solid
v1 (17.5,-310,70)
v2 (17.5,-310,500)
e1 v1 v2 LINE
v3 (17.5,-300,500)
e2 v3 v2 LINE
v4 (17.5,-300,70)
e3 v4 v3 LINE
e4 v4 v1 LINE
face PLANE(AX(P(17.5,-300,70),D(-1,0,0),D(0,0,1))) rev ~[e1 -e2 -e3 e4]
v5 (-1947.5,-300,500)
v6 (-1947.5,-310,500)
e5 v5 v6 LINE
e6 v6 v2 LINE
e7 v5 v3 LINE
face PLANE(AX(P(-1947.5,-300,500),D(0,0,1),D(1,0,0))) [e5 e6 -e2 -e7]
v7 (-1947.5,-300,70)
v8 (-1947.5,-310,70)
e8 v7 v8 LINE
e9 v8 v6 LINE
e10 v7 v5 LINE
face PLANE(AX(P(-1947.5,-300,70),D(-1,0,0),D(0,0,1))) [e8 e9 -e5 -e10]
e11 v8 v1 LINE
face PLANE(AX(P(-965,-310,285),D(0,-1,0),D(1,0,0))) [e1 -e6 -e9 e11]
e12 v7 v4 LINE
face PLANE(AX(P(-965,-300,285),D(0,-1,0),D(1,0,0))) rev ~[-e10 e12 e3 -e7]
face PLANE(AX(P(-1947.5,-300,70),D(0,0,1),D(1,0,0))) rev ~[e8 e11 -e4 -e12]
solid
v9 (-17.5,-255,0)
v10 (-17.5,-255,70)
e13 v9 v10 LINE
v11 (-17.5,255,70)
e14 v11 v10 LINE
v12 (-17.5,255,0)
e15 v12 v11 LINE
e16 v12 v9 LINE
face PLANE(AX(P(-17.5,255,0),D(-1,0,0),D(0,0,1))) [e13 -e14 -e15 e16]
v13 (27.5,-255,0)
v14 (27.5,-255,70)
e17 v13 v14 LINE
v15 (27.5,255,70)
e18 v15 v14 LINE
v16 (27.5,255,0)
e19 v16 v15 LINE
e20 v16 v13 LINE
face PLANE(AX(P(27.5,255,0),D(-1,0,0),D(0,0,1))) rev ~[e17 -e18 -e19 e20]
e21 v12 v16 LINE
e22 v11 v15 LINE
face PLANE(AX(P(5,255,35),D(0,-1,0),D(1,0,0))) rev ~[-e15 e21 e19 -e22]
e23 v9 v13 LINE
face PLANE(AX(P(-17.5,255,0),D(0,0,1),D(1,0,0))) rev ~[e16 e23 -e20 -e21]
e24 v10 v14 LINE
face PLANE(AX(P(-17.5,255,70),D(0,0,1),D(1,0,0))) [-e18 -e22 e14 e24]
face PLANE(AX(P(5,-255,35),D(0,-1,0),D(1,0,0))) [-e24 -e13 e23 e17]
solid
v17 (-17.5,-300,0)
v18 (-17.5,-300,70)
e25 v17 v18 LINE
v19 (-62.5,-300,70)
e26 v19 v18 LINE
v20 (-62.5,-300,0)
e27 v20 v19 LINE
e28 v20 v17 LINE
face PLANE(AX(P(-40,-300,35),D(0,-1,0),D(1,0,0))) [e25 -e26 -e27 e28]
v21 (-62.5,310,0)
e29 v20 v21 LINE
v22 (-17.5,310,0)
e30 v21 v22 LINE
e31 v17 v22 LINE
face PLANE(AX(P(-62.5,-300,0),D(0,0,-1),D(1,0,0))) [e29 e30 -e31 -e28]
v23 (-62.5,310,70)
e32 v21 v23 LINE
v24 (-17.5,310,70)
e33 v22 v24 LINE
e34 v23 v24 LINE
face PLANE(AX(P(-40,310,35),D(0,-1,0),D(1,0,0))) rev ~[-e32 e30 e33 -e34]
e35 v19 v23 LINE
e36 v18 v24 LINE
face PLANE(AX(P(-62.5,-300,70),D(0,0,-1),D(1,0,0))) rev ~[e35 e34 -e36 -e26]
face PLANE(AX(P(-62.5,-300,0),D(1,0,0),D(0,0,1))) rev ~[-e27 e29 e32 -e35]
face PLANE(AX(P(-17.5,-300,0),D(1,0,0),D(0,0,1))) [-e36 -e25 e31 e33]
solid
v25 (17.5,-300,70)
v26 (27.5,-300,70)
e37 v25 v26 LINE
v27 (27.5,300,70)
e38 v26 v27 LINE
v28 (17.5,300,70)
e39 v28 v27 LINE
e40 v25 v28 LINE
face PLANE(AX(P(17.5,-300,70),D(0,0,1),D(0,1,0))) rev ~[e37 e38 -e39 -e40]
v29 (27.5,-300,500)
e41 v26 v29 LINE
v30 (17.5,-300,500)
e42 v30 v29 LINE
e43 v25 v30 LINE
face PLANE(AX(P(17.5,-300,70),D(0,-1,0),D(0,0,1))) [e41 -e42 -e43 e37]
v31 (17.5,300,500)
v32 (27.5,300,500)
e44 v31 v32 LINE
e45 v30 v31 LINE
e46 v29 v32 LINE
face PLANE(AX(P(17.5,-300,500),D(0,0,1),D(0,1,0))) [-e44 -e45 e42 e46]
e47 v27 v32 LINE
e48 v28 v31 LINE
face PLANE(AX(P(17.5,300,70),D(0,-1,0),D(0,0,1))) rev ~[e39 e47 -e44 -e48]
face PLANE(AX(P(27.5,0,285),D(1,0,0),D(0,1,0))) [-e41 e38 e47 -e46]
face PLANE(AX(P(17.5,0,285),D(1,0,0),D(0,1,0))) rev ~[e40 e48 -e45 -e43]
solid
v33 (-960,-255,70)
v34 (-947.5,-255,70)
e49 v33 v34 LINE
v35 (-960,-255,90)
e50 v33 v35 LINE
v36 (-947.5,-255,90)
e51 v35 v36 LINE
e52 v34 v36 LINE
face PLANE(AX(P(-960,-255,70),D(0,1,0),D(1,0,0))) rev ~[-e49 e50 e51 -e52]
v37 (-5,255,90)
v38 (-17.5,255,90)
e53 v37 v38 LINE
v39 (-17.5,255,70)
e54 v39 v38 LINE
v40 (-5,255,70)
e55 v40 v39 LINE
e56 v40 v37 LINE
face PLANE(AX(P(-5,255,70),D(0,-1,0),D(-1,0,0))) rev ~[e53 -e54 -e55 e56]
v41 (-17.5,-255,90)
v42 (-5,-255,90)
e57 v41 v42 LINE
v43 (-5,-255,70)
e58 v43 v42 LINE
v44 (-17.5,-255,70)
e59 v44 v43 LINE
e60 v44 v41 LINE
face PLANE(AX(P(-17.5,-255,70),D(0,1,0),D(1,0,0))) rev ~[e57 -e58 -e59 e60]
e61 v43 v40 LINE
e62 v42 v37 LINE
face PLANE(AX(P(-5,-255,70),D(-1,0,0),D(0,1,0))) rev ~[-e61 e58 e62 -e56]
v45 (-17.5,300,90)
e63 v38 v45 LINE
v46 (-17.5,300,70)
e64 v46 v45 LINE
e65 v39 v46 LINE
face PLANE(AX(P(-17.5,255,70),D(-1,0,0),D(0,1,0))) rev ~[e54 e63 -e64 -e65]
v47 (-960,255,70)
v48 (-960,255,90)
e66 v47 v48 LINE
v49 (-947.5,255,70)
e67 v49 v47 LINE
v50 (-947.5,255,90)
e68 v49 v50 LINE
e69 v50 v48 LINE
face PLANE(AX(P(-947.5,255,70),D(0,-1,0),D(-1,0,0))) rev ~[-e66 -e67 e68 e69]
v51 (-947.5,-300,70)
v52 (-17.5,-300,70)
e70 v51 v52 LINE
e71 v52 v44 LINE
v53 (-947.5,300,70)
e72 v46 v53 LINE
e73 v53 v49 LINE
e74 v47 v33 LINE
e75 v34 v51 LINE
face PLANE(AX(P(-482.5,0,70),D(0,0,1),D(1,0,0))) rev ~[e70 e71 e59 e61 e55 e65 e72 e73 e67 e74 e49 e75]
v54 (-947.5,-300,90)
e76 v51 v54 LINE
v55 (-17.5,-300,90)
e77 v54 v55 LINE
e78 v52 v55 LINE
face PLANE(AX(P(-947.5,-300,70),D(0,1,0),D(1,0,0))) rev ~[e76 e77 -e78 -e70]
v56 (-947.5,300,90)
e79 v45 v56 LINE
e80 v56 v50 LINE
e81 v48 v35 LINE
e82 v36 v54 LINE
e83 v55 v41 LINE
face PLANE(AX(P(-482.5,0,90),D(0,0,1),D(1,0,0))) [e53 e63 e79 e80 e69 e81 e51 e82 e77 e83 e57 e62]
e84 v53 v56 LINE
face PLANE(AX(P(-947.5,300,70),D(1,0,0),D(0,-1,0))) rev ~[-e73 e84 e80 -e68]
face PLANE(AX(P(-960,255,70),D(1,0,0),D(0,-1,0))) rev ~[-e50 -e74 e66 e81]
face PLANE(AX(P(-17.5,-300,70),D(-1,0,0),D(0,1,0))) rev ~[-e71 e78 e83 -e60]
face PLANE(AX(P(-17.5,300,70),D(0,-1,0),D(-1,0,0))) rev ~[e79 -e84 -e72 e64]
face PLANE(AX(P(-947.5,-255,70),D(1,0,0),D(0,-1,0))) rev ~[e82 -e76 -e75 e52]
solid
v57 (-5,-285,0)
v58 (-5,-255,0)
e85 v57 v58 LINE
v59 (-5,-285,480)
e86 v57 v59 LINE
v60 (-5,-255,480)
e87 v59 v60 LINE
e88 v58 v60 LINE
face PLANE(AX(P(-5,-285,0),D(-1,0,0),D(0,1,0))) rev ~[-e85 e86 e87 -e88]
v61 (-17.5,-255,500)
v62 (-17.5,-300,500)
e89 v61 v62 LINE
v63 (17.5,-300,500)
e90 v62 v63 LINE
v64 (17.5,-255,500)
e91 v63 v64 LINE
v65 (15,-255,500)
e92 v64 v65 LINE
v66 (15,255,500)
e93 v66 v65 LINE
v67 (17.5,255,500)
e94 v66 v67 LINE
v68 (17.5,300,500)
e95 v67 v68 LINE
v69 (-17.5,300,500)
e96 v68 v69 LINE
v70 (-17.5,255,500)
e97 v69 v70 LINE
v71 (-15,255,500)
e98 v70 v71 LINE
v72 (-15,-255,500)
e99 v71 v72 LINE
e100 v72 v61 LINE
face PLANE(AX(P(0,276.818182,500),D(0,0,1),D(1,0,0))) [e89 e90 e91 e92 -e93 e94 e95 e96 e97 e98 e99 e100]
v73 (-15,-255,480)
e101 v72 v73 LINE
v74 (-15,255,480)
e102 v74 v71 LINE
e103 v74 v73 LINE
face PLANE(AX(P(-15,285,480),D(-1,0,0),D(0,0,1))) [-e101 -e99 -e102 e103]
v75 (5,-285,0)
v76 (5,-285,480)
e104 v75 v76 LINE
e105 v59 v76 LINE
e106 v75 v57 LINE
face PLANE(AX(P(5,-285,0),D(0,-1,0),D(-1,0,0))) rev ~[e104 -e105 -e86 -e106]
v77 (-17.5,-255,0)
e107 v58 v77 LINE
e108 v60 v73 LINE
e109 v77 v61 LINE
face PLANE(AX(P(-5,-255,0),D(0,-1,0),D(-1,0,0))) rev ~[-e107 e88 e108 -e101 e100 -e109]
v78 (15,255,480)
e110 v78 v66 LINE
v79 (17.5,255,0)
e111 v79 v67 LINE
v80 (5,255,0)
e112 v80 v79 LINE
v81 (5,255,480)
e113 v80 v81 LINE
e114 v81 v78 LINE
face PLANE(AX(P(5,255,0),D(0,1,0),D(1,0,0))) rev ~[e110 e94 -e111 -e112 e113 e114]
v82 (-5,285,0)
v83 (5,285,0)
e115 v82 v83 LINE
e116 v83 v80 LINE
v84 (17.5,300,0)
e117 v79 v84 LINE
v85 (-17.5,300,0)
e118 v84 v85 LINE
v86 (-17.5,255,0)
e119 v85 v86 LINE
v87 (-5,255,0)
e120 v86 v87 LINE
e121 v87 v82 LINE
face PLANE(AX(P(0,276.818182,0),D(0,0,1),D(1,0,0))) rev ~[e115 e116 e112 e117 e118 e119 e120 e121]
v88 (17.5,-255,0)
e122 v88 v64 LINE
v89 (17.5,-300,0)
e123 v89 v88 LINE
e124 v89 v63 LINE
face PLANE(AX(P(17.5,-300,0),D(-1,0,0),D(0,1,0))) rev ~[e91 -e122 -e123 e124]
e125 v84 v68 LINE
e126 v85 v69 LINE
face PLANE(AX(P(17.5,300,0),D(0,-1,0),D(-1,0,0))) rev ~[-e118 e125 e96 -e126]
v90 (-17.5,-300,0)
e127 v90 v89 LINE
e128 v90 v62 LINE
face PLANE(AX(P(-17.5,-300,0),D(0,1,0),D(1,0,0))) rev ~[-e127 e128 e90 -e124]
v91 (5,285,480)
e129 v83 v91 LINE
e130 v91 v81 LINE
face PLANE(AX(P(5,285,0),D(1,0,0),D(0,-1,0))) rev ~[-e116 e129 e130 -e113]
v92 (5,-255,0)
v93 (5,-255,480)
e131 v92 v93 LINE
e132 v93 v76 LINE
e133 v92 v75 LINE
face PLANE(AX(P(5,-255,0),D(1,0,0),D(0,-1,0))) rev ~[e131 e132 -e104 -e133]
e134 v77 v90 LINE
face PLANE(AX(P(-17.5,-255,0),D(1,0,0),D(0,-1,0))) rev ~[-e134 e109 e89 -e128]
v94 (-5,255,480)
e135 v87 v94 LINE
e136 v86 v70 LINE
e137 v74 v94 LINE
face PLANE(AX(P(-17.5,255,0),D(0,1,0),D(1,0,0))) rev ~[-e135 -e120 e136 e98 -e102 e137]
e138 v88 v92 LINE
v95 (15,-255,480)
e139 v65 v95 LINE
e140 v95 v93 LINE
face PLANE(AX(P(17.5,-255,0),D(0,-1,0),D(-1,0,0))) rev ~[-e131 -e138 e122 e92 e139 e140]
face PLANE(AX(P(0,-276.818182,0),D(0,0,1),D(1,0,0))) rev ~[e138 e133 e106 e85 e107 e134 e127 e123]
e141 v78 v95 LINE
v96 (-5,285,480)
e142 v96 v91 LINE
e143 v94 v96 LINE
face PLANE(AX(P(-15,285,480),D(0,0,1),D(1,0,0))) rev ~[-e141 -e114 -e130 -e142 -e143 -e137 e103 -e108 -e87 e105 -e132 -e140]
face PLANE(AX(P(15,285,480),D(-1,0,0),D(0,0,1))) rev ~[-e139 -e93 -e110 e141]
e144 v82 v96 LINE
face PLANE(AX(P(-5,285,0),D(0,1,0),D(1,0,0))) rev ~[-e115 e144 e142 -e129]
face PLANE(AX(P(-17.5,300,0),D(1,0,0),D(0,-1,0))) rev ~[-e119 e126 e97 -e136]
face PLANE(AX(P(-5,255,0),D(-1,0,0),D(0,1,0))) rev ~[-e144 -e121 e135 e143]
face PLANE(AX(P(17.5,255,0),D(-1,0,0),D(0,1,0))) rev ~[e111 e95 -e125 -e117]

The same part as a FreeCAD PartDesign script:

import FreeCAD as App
import Part
import Sketcher

V = App.Vector

doc = App.newDocument("Part")
params = doc.addObject("Spreadsheet::Sheet", "Params")
for row, (alias, value) in enumerate([
    ("sketch1_width", "35 mm"),
    ("sketch1_width2", "10 mm"),
    ("sketch1_height", "45 mm"),
    ("sketch1_height2", "30 mm"),
    ("pad1_length", "500 mm"),
    ("sketch2_width", "30 mm"),
    ("sketch2_height", "20 mm"),
    ("sketch3_width", "45 mm"),
    ("sketch3_height", "70 mm"),
    ("pad3_length", "610 mm"),
    ("sketch4_width", "1965 mm"),
    ("sketch4_height", "430 mm"),
    ("pad4_length", "10 mm"),
    ("sketch5_width", "600 mm"),
    ("sketch5_height", "430 mm"),
    ("pad5_length", "10 mm"),
    ("sketch6_width", "930 mm"),
    ("sketch6_height", "510 mm"),
    ("sketch6_height2", "45 mm"),
    ("sketch6_width2", "12.5 mm"),
    ("pad6_length", "20 mm"),
    ("sketch7_width", "45 mm"),
    ("sketch7_height", "70 mm"),
    ("pad7_length", "510 mm"),
], start=1):
    params.set(f"A{row}", alias)
    params.set(f"B{row}", "=" + value)
    params.setAlias(f"B{row}", alias)

body = doc.addObject("PartDesign::Body", "Body")
body.AllowCompound = True

sketch1 = body.newObject("Sketcher::SketchObject", "Sketch")
sketch1.AttachmentSupport = (doc.getObject("XY_Plane"), [""])
sketch1.MapMode = "FlatFace"
sketch1.addGeometry([
    Part.LineSegment(V(17.5, 300, 0), V(-17.5, 300, 0)),
    Part.LineSegment(V(-17.5, 300, 0), V(-17.5, 255, 0)),
    Part.LineSegment(V(-17.5, 255, 0), V(-5, 255, 0)),
    Part.LineSegment(V(-5, 255, 0), V(-5, 285, 0)),
    Part.LineSegment(V(-5, 285, 0), V(5, 285, 0)),
    Part.LineSegment(V(5, 285, 0), V(5, 255, 0)),
    Part.LineSegment(V(5, 255, 0), V(17.5, 255, 0)),
    Part.LineSegment(V(17.5, 255, 0), V(17.5, 300, 0)),
    Part.LineSegment(V(-5, -255, 0), V(-17.5, -255, 0)),
    Part.LineSegment(V(-17.5, -255, 0), V(-17.5, -300, 0)),
    Part.LineSegment(V(-17.5, -300, 0), V(17.5, -300, 0)),
    Part.LineSegment(V(17.5, -300, 0), V(17.5, -255, 0)),
    Part.LineSegment(V(17.5, -255, 0), V(5, -255, 0)),
    Part.LineSegment(V(5, -255, 0), V(5, -285, 0)),
    Part.LineSegment(V(5, -285, 0), V(-5, -285, 0)),
    Part.LineSegment(V(-5, -285, 0), V(-5, -255, 0)),
], False)
sketch1.addConstraint([
    Sketcher.Constraint("Coincident", 0, 2, 1, 1),
    Sketcher.Constraint("Coincident", 1, 2, 2, 1),
    Sketcher.Constraint("Coincident", 2, 2, 3, 1),
    Sketcher.Constraint("Coincident", 3, 2, 4, 1),
    Sketcher.Constraint("Coincident", 4, 2, 5, 1),
    Sketcher.Constraint("Coincident", 5, 2, 6, 1),
    Sketcher.Constraint("Coincident", 6, 2, 7, 1),
    Sketcher.Constraint("Coincident", 7, 2, 0, 1),
    Sketcher.Constraint("Coincident", 8, 2, 9, 1),
    Sketcher.Constraint("Coincident", 9, 2, 10, 1),
    Sketcher.Constraint("Coincident", 10, 2, 11, 1),
    Sketcher.Constraint("Coincident", 11, 2, 12, 1),
    Sketcher.Constraint("Coincident", 12, 2, 13, 1),
    Sketcher.Constraint("Coincident", 13, 2, 14, 1),
    Sketcher.Constraint("Coincident", 14, 2, 15, 1),
    Sketcher.Constraint("Coincident", 15, 2, 8, 1),
    Sketcher.Constraint("Horizontal", 0),
    Sketcher.Constraint("Vertical", 1),
    Sketcher.Constraint("Horizontal", 2),
    Sketcher.Constraint("Vertical", 3),
    Sketcher.Constraint("Horizontal", 4),
    Sketcher.Constraint("Vertical", 5),
    Sketcher.Constraint("Horizontal", 6),
    Sketcher.Constraint("Vertical", 7),
    Sketcher.Constraint("Horizontal", 8),
    Sketcher.Constraint("Vertical", 9),
    Sketcher.Constraint("Horizontal", 10),
    Sketcher.Constraint("Vertical", 11),
    Sketcher.Constraint("Horizontal", 12),
    Sketcher.Constraint("Vertical", 13),
    Sketcher.Constraint("Horizontal", 14),
    Sketcher.Constraint("Vertical", 15),
    Sketcher.Constraint("Symmetric", 6, 2, 8, 2, -1, 1),
    Sketcher.Constraint("Symmetric", 0, 2, 10, 2, -1, 1),
    Sketcher.Constraint("Symmetric", 2, 2, 12, 2, -1, 1),
    Sketcher.Constraint("Symmetric", 4, 2, 14, 2, -1, 1),
    Sketcher.Constraint("Symmetric", 2, 2, 5, 2, -2),
    Sketcher.Constraint("Vertical", 1, 2, 8, 2),
    Sketcher.Constraint("DistanceX", 0, 2, 0, 1, 35.0),
    Sketcher.Constraint("DistanceX", 4, 1, 4, 2, 10.0),
    Sketcher.Constraint("DistanceY", 1, 2, 1, 1, 45.0),
    Sketcher.Constraint("DistanceY", 3, 1, 3, 2, 30.0),
    Sketcher.Constraint("DistanceY", -1, 1, 0, 2, 300.0),
])
sketch1.setExpression("Constraints[38]", "Params.sketch1_width")
sketch1.setExpression("Constraints[39]", "Params.sketch1_width2")
sketch1.setExpression("Constraints[40]", "Params.sketch1_height")
sketch1.setExpression("Constraints[41]", "Params.sketch1_height2")
pad1 = body.newObject("PartDesign::Pad", "Pad")
pad1.Profile = sketch1
pad1.setExpression("Length", "Params.pad1_length")

sketch2 = body.newObject("Sketcher::SketchObject", "Sketch001")
sketch2.AttachmentSupport = (doc.getObject("XZ_Plane"), [""])
sketch2.MapMode = "FlatFace"
sketch2.AttachmentOffset = App.Placement(V(0, 0, -285), App.Rotation())
sketch2.addGeometry([
    Part.LineSegment(V(-15, 500, 0), V(-15, 480, 0)),
    Part.LineSegment(V(-15, 480, 0), V(15, 480, 0)),
    Part.LineSegment(V(15, 480, 0), V(15, 500, 0)),
    Part.LineSegment(V(15, 500, 0), V(-15, 500, 0)),
], False)
sketch2.addConstraint([
    Sketcher.Constraint("Coincident", 0, 2, 1, 1),
    Sketcher.Constraint("Coincident", 1, 2, 2, 1),
    Sketcher.Constraint("Coincident", 2, 2, 3, 1),
    Sketcher.Constraint("Coincident", 3, 2, 0, 1),
    Sketcher.Constraint("Vertical", 0),
    Sketcher.Constraint("Horizontal", 1),
    Sketcher.Constraint("Vertical", 2),
    Sketcher.Constraint("Horizontal", 3),
    Sketcher.Constraint("DistanceX", 1, 1, 1, 2, 30.0),
    Sketcher.Constraint("DistanceY", 0, 2, 0, 1, 20.0),
    Sketcher.Constraint("DistanceX", 0, 2, -1, 1, 15.0),
    Sketcher.Constraint("DistanceY", -1, 1, 0, 2, 480.0),
])
sketch2.setExpression("Constraints[8]", "Params.sketch2_width")
sketch2.setExpression("Constraints[9]", "Params.sketch2_height")
pad2 = body.newObject("PartDesign::Pad", "Pad001")
pad2.Profile = sketch2
pad2.Type = "UpToLast"
body2 = doc.addObject("PartDesign::Body", "Body001")

sketch3 = body2.newObject("Sketcher::SketchObject", "Sketch002")
sketch3.AttachmentSupport = (doc.getObject("XZ_Plane001"), [""])
sketch3.MapMode = "FlatFace"
sketch3.AttachmentOffset = App.Placement(V(0, 0, 300), App.Rotation())
sketch3.addGeometry([
    Part.LineSegment(V(-62.5, 70, 0), V(-62.5, 0, 0)),
    Part.LineSegment(V(-62.5, 0, 0), V(-17.5, 0, 0)),
    Part.LineSegment(V(-17.5, 0, 0), V(-17.5, 70, 0)),
    Part.LineSegment(V(-17.5, 70, 0), V(-62.5, 70, 0)),
], False)
sketch3.addConstraint([
    Sketcher.Constraint("Coincident", 0, 2, 1, 1),
    Sketcher.Constraint("Coincident", 1, 2, 2, 1),
    Sketcher.Constraint("Coincident", 2, 2, 3, 1),
    Sketcher.Constraint("Coincident", 3, 2, 0, 1),
    Sketcher.Constraint("Vertical", 0),
    Sketcher.Constraint("Horizontal", 1),
    Sketcher.Constraint("Vertical", 2),
    Sketcher.Constraint("Horizontal", 3),
    Sketcher.Constraint("PointOnObject", 0, 2, -1),
    Sketcher.Constraint("DistanceX", 1, 1, 1, 2, 45.0),
    Sketcher.Constraint("DistanceY", 0, 2, 0, 1, 70.0),
    Sketcher.Constraint("DistanceX", 0, 2, -1, 1, 62.5),
])
sketch3.setExpression("Constraints[9]", "Params.sketch3_width")
sketch3.setExpression("Constraints[10]", "Params.sketch3_height")
pad3 = body2.newObject("PartDesign::Pad", "Pad002")
pad3.Profile = sketch3
pad3.setExpression("Length", "Params.pad3_length")
pad3.Reversed = True
body3 = doc.addObject("PartDesign::Body", "Body002")

sketch4 = body3.newObject("Sketcher::SketchObject", "Sketch003")
sketch4.AttachmentSupport = (doc.getObject("XZ_Plane002"), [""])
sketch4.MapMode = "FlatFace"
sketch4.AttachmentOffset = App.Placement(V(0, 0, 300), App.Rotation())
sketch4.addGeometry([
    Part.LineSegment(V(-1947.5, 500, 0), V(-1947.5, 70, 0)),
    Part.LineSegment(V(-1947.5, 70, 0), V(17.5, 70, 0)),
    Part.LineSegment(V(17.5, 70, 0), V(17.5, 500, 0)),
    Part.LineSegment(V(17.5, 500, 0), V(-1947.5, 500, 0)),
], False)
sketch4.addConstraint([
    Sketcher.Constraint("Coincident", 0, 2, 1, 1),
    Sketcher.Constraint("Coincident", 1, 2, 2, 1),
    Sketcher.Constraint("Coincident", 2, 2, 3, 1),
    Sketcher.Constraint("Coincident", 3, 2, 0, 1),
    Sketcher.Constraint("Vertical", 0),
    Sketcher.Constraint("Horizontal", 1),
    Sketcher.Constraint("Vertical", 2),
    Sketcher.Constraint("Horizontal", 3),
    Sketcher.Constraint("DistanceX", 1, 1, 1, 2, 1965.0),
    Sketcher.Constraint("DistanceY", 0, 2, 0, 1, 430.0),
    Sketcher.Constraint("DistanceY", -1, 1, 0, 2, 70.0),
    Sketcher.Constraint("DistanceX", 0, 2, -1, 1, 1947.5),
])
sketch4.setExpression("Constraints[8]", "Params.sketch4_width")
sketch4.setExpression("Constraints[9]", "Params.sketch4_height")
pad4 = body3.newObject("PartDesign::Pad", "Pad003")
pad4.Profile = sketch4
pad4.setExpression("Length", "Params.pad4_length")
body4 = doc.addObject("PartDesign::Body", "Body003")

sketch5 = body4.newObject("Sketcher::SketchObject", "Sketch004")
sketch5.AttachmentSupport = (doc.getObject("YZ_Plane003"), [""])
sketch5.MapMode = "FlatFace"
sketch5.AttachmentOffset = App.Placement(V(0, 0, 17.5), App.Rotation())
sketch5.addGeometry([
    Part.LineSegment(V(-300, 500, 0), V(-300, 70, 0)),
    Part.LineSegment(V(-300, 70, 0), V(300, 70, 0)),
    Part.LineSegment(V(300, 70, 0), V(300, 500, 0)),
    Part.LineSegment(V(300, 500, 0), V(-300, 500, 0)),
], False)
sketch5.addConstraint([
    Sketcher.Constraint("Coincident", 0, 2, 1, 1),
    Sketcher.Constraint("Coincident", 1, 2, 2, 1),
    Sketcher.Constraint("Coincident", 2, 2, 3, 1),
    Sketcher.Constraint("Coincident", 3, 2, 0, 1),
    Sketcher.Constraint("Vertical", 0),
    Sketcher.Constraint("Horizontal", 1),
    Sketcher.Constraint("Vertical", 2),
    Sketcher.Constraint("Horizontal", 3),
    Sketcher.Constraint("DistanceX", 1, 1, 1, 2, 600.0),
    Sketcher.Constraint("DistanceY", 0, 2, 0, 1, 430.0),
    Sketcher.Constraint("DistanceX", 0, 2, -1, 1, 300.0),
    Sketcher.Constraint("DistanceY", -1, 1, 0, 2, 70.0),
])
sketch5.setExpression("Constraints[8]", "Params.sketch5_width")
sketch5.setExpression("Constraints[9]", "Params.sketch5_height")
pad5 = body4.newObject("PartDesign::Pad", "Pad004")
pad5.Profile = sketch5
pad5.setExpression("Length", "Params.pad5_length")
body5 = doc.addObject("PartDesign::Body", "Body004")

sketch6 = body5.newObject("Sketcher::SketchObject", "Sketch005")
sketch6.AttachmentSupport = (doc.getObject("XY_Plane004"), [""])
sketch6.MapMode = "FlatFace"
sketch6.AttachmentOffset = App.Placement(V(0, 0, 70), App.Rotation())
sketch6.addGeometry([
    Part.LineSegment(V(-17.5, -255, 0), V(-5, -255, 0)),
    Part.LineSegment(V(-5, -255, 0), V(-5, 255, 0)),
    Part.LineSegment(V(-5, 255, 0), V(-17.5, 255, 0)),
    Part.LineSegment(V(-17.5, 255, 0), V(-17.5, 300, 0)),
    Part.LineSegment(V(-17.5, 300, 0), V(-947.5, 300, 0)),
    Part.LineSegment(V(-947.5, 300, 0), V(-947.5, 255, 0)),
    Part.LineSegment(V(-947.5, 255, 0), V(-960, 255, 0)),
    Part.LineSegment(V(-960, 255, 0), V(-960, -255, 0)),
    Part.LineSegment(V(-960, -255, 0), V(-947.5, -255, 0)),
    Part.LineSegment(V(-947.5, -255, 0), V(-947.5, -300, 0)),
    Part.LineSegment(V(-947.5, -300, 0), V(-17.5, -300, 0)),
    Part.LineSegment(V(-17.5, -300, 0), V(-17.5, -255, 0)),
], False)
sketch6.addConstraint([
    Sketcher.Constraint("Coincident", 0, 2, 1, 1),
    Sketcher.Constraint("Coincident", 1, 2, 2, 1),
    Sketcher.Constraint("Coincident", 2, 2, 3, 1),
    Sketcher.Constraint("Coincident", 3, 2, 4, 1),
    Sketcher.Constraint("Coincident", 4, 2, 5, 1),
    Sketcher.Constraint("Coincident", 5, 2, 6, 1),
    Sketcher.Constraint("Coincident", 6, 2, 7, 1),
    Sketcher.Constraint("Coincident", 7, 2, 8, 1),
    Sketcher.Constraint("Coincident", 8, 2, 9, 1),
    Sketcher.Constraint("Coincident", 9, 2, 10, 1),
    Sketcher.Constraint("Coincident", 10, 2, 11, 1),
    Sketcher.Constraint("Coincident", 11, 2, 0, 1),
    Sketcher.Constraint("Horizontal", 0),
    Sketcher.Constraint("Vertical", 1),
    Sketcher.Constraint("Horizontal", 2),
    Sketcher.Constraint("Vertical", 3),
    Sketcher.Constraint("Horizontal", 4),
    Sketcher.Constraint("Vertical", 5),
    Sketcher.Constraint("Horizontal", 6),
    Sketcher.Constraint("Vertical", 7),
    Sketcher.Constraint("Horizontal", 8),
    Sketcher.Constraint("Vertical", 9),
    Sketcher.Constraint("Horizontal", 10),
    Sketcher.Constraint("Vertical", 11),
    Sketcher.Constraint("Symmetric", 5, 2, 8, 2, -1),
    Sketcher.Constraint("Symmetric", 3, 2, 10, 2, -1),
    Sketcher.Constraint("Horizontal", 2, 2, 5, 2),
    Sketcher.Constraint("Horizontal", 0, 2, 7, 2),
    Sketcher.Constraint("Equal", 2, 6),
    Sketcher.Constraint("DistanceX", 4, 2, 4, 1, 930.0),
    Sketcher.Constraint("DistanceY", 1, 1, 1, 2, 510.0),
    Sketcher.Constraint("DistanceY", 3, 1, 3, 2, 45.0),
    Sketcher.Constraint("DistanceX", 0, 1, 0, 2, 12.5),
    Sketcher.Constraint("DistanceX", 0, 2, -1, 1, 5.0),
])
sketch6.setExpression("Constraints[29]", "Params.sketch6_width")
sketch6.setExpression("Constraints[30]", "Params.sketch6_height")
sketch6.setExpression("Constraints[31]", "Params.sketch6_height2")
sketch6.setExpression("Constraints[32]", "Params.sketch6_width2")
pad6 = body5.newObject("PartDesign::Pad", "Pad005")
pad6.Profile = sketch6
pad6.setExpression("Length", "Params.pad6_length")
body6 = doc.addObject("PartDesign::Body", "Body005")

sketch7 = body6.newObject("Sketcher::SketchObject", "Sketch006")
sketch7.AttachmentSupport = (doc.getObject("XZ_Plane005"), [""])
sketch7.MapMode = "FlatFace"
sketch7.AttachmentOffset = App.Placement(V(0, 0, -255), App.Rotation())
sketch7.addGeometry([
    Part.LineSegment(V(-17.5, 70, 0), V(-17.5, 0, 0)),
    Part.LineSegment(V(-17.5, 0, 0), V(27.5, 0, 0)),
    Part.LineSegment(V(27.5, 0, 0), V(27.5, 70, 0)),
    Part.LineSegment(V(27.5, 70, 0), V(-17.5, 70, 0)),
], False)
sketch7.addConstraint([
    Sketcher.Constraint("Coincident", 0, 2, 1, 1),
    Sketcher.Constraint("Coincident", 1, 2, 2, 1),
    Sketcher.Constraint("Coincident", 2, 2, 3, 1),
    Sketcher.Constraint("Coincident", 3, 2, 0, 1),
    Sketcher.Constraint("Vertical", 0),
    Sketcher.Constraint("Horizontal", 1),
    Sketcher.Constraint("Vertical", 2),
    Sketcher.Constraint("Horizontal", 3),
    Sketcher.Constraint("PointOnObject", 0, 2, -1),
    Sketcher.Constraint("DistanceX", 1, 1, 1, 2, 45.0),
    Sketcher.Constraint("DistanceY", 0, 2, 0, 1, 70.0),
    Sketcher.Constraint("DistanceX", 0, 2, -1, 1, 17.5),
])
sketch7.setExpression("Constraints[9]", "Params.sketch7_width")
sketch7.setExpression("Constraints[10]", "Params.sketch7_height")
pad7 = body6.newObject("PartDesign::Pad", "Pad006")
pad7.Profile = sketch7
pad7.setExpression("Length", "Params.pad7_length")

doc.recompute()
